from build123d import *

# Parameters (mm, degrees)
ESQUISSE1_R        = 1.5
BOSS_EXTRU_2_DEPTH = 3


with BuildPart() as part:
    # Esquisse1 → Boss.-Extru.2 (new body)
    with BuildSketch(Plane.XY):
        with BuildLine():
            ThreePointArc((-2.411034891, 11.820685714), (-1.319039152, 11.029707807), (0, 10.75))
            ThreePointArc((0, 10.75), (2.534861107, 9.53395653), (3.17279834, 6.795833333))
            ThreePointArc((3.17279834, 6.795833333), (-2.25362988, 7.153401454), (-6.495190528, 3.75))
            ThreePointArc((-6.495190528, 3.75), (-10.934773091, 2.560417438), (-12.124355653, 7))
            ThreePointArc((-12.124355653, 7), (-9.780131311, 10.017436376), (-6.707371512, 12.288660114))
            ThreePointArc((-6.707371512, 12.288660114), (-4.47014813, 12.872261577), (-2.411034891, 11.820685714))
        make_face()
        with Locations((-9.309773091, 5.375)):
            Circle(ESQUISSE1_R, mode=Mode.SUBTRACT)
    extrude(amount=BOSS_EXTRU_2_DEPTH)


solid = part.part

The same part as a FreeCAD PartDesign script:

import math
import FreeCAD as App
import Part
import Sketcher

V = App.Vector

doc = App.newDocument("Part")
params = doc.addObject("Spreadsheet::Sheet", "Params")
for row, (alias, value) in enumerate([
    ("sketch1_diameter", "3 mm"),
    ("sketch1_radius", "14 mm"),
    ("sketch1_radius2", "7.5 mm"),
    ("pad1_length", "3 mm"),
], start=1):
    params.set(f"A{row}", alias)
    params.set(f"B{row}", "=" + value)
    params.setAlias(f"B{row}", alias)

body = doc.addObject("PartDesign::Body", "Body")

# Sketch on XY plane
sketch1 = body.newObject("Sketcher::SketchObject", "Sketch")
sketch1.AttachmentSupport = (doc.getObject("XY_Plane"), [""])
sketch1.MapMode = "FlatFace"
sketch1.addGeometry(Part.ArcOfCircle(Part.Circle(V(0, 14, 0), V(0, 0, 1), 3.3), math.radians(-138), math.radians(-90)), False)
sketch1.addGeometry(Part.ArcOfCircle(Part.Circle(V(-4.8, 9.6, 0), V(0, 0, 1), 3.2), math.radians(42), math.radians(125)), False)
sketch1.addGeometry(Part.ArcOfCircle(Part.Circle(V(0, 0, 0), V(0, 0, 1), 14), math.radians(119), math.radians(150)), False)
sketch1.addGeometry(Part.ArcOfCircle(Part.Circle(V(-9.3, 5.4, 0), V(0, 0, 1), 3.2), math.radians(150), math.radians(330)), False)
sketch1.addGeometry(Part.ArcOfCircle(Part.Circle(V(0, 0, 0), V(0, 0, 1), 7.5), math.radians(65), math.radians(150)), False)
sketch1.addGeometry(Part.ArcOfCircle(Part.Circle(V(0, 7.5, 0), V(0, 0, 1), 3.3), math.radians(-13), math.radians(90)), False)
sketch1.addGeometry(Part.Circle(V(-9.3, 5.4, 0), V(0, 0, 1), 1.5), False)
sketch1.addConstraint(Sketcher.Constraint("Tangent", 0, 1, 1, 1))
sketch1.addConstraint(Sketcher.Constraint("Coincident", 1, 2, 2, 1))
sketch1.addConstraint(Sketcher.Constraint("Tangent", 2, 2, 3, 1))
sketch1.addConstraint(Sketcher.Constraint("Tangent", 3, 2, 4, 2))
sketch1.addConstraint(Sketcher.Constraint("Coincident", 4, 1, 5, 1))
sketch1.addConstraint(Sketcher.Constraint("Tangent", 5, 2, 0, 2))
sketch1.addConstraint(Sketcher.Constraint("Coincident", 2, 3, -1, 1))
sketch1.addConstraint(Sketcher.Constraint("Coincident", 4, 3, -1, 1))
sketch1.addConstraint(Sketcher.Constraint("Coincident", 6, 3, 3, 3))
sketch1.addConstraint(Sketcher.Constraint("Equal", 0, 1))
sketch1.addConstraint(Sketcher.Constraint("Equal", 1, 3))
sketch1.addConstraint(Sketcher.Constraint("Equal", 3, 5))
sketch1.addConstraint(Sketcher.Constraint("PointOnObject", 0, 3, -2))
sketch1.addConstraint(Sketcher.Constraint("PointOnObject", 5, 3, -2))
sketch1.addConstraint(Sketcher.Constraint("Diameter", 6, 3.0))
sketch1.addConstraint(Sketcher.Constraint("Radius", 2, 14.0))
sketch1.addConstraint(Sketcher.Constraint("Radius", 4, 7.5))
sketch1.addConstraint(Sketcher.Constraint("DistanceY", -1, 1, 0, 3, 14.0))
sketch1.addConstraint(Sketcher.Constraint("DistanceY", -1, 1, 2, 2, 7.0))
sketch1.addConstraint(Sketcher.Constraint("DistanceX", 1, 2, 1, 3, 1.885302))
sketch1.setExpression("Constraints[14]", "Params.sketch1_diameter")
sketch1.setExpression("Constraints[15]", "Params.sketch1_radius")
sketch1.setExpression("Constraints[16]", "Params.sketch1_radius2")
pad1 = body.newObject("PartDesign::Pad", "Pad")
pad1.Profile = sketch1
pad1.setExpression("Length", "Params.pad1_length")

doc.recompute()
